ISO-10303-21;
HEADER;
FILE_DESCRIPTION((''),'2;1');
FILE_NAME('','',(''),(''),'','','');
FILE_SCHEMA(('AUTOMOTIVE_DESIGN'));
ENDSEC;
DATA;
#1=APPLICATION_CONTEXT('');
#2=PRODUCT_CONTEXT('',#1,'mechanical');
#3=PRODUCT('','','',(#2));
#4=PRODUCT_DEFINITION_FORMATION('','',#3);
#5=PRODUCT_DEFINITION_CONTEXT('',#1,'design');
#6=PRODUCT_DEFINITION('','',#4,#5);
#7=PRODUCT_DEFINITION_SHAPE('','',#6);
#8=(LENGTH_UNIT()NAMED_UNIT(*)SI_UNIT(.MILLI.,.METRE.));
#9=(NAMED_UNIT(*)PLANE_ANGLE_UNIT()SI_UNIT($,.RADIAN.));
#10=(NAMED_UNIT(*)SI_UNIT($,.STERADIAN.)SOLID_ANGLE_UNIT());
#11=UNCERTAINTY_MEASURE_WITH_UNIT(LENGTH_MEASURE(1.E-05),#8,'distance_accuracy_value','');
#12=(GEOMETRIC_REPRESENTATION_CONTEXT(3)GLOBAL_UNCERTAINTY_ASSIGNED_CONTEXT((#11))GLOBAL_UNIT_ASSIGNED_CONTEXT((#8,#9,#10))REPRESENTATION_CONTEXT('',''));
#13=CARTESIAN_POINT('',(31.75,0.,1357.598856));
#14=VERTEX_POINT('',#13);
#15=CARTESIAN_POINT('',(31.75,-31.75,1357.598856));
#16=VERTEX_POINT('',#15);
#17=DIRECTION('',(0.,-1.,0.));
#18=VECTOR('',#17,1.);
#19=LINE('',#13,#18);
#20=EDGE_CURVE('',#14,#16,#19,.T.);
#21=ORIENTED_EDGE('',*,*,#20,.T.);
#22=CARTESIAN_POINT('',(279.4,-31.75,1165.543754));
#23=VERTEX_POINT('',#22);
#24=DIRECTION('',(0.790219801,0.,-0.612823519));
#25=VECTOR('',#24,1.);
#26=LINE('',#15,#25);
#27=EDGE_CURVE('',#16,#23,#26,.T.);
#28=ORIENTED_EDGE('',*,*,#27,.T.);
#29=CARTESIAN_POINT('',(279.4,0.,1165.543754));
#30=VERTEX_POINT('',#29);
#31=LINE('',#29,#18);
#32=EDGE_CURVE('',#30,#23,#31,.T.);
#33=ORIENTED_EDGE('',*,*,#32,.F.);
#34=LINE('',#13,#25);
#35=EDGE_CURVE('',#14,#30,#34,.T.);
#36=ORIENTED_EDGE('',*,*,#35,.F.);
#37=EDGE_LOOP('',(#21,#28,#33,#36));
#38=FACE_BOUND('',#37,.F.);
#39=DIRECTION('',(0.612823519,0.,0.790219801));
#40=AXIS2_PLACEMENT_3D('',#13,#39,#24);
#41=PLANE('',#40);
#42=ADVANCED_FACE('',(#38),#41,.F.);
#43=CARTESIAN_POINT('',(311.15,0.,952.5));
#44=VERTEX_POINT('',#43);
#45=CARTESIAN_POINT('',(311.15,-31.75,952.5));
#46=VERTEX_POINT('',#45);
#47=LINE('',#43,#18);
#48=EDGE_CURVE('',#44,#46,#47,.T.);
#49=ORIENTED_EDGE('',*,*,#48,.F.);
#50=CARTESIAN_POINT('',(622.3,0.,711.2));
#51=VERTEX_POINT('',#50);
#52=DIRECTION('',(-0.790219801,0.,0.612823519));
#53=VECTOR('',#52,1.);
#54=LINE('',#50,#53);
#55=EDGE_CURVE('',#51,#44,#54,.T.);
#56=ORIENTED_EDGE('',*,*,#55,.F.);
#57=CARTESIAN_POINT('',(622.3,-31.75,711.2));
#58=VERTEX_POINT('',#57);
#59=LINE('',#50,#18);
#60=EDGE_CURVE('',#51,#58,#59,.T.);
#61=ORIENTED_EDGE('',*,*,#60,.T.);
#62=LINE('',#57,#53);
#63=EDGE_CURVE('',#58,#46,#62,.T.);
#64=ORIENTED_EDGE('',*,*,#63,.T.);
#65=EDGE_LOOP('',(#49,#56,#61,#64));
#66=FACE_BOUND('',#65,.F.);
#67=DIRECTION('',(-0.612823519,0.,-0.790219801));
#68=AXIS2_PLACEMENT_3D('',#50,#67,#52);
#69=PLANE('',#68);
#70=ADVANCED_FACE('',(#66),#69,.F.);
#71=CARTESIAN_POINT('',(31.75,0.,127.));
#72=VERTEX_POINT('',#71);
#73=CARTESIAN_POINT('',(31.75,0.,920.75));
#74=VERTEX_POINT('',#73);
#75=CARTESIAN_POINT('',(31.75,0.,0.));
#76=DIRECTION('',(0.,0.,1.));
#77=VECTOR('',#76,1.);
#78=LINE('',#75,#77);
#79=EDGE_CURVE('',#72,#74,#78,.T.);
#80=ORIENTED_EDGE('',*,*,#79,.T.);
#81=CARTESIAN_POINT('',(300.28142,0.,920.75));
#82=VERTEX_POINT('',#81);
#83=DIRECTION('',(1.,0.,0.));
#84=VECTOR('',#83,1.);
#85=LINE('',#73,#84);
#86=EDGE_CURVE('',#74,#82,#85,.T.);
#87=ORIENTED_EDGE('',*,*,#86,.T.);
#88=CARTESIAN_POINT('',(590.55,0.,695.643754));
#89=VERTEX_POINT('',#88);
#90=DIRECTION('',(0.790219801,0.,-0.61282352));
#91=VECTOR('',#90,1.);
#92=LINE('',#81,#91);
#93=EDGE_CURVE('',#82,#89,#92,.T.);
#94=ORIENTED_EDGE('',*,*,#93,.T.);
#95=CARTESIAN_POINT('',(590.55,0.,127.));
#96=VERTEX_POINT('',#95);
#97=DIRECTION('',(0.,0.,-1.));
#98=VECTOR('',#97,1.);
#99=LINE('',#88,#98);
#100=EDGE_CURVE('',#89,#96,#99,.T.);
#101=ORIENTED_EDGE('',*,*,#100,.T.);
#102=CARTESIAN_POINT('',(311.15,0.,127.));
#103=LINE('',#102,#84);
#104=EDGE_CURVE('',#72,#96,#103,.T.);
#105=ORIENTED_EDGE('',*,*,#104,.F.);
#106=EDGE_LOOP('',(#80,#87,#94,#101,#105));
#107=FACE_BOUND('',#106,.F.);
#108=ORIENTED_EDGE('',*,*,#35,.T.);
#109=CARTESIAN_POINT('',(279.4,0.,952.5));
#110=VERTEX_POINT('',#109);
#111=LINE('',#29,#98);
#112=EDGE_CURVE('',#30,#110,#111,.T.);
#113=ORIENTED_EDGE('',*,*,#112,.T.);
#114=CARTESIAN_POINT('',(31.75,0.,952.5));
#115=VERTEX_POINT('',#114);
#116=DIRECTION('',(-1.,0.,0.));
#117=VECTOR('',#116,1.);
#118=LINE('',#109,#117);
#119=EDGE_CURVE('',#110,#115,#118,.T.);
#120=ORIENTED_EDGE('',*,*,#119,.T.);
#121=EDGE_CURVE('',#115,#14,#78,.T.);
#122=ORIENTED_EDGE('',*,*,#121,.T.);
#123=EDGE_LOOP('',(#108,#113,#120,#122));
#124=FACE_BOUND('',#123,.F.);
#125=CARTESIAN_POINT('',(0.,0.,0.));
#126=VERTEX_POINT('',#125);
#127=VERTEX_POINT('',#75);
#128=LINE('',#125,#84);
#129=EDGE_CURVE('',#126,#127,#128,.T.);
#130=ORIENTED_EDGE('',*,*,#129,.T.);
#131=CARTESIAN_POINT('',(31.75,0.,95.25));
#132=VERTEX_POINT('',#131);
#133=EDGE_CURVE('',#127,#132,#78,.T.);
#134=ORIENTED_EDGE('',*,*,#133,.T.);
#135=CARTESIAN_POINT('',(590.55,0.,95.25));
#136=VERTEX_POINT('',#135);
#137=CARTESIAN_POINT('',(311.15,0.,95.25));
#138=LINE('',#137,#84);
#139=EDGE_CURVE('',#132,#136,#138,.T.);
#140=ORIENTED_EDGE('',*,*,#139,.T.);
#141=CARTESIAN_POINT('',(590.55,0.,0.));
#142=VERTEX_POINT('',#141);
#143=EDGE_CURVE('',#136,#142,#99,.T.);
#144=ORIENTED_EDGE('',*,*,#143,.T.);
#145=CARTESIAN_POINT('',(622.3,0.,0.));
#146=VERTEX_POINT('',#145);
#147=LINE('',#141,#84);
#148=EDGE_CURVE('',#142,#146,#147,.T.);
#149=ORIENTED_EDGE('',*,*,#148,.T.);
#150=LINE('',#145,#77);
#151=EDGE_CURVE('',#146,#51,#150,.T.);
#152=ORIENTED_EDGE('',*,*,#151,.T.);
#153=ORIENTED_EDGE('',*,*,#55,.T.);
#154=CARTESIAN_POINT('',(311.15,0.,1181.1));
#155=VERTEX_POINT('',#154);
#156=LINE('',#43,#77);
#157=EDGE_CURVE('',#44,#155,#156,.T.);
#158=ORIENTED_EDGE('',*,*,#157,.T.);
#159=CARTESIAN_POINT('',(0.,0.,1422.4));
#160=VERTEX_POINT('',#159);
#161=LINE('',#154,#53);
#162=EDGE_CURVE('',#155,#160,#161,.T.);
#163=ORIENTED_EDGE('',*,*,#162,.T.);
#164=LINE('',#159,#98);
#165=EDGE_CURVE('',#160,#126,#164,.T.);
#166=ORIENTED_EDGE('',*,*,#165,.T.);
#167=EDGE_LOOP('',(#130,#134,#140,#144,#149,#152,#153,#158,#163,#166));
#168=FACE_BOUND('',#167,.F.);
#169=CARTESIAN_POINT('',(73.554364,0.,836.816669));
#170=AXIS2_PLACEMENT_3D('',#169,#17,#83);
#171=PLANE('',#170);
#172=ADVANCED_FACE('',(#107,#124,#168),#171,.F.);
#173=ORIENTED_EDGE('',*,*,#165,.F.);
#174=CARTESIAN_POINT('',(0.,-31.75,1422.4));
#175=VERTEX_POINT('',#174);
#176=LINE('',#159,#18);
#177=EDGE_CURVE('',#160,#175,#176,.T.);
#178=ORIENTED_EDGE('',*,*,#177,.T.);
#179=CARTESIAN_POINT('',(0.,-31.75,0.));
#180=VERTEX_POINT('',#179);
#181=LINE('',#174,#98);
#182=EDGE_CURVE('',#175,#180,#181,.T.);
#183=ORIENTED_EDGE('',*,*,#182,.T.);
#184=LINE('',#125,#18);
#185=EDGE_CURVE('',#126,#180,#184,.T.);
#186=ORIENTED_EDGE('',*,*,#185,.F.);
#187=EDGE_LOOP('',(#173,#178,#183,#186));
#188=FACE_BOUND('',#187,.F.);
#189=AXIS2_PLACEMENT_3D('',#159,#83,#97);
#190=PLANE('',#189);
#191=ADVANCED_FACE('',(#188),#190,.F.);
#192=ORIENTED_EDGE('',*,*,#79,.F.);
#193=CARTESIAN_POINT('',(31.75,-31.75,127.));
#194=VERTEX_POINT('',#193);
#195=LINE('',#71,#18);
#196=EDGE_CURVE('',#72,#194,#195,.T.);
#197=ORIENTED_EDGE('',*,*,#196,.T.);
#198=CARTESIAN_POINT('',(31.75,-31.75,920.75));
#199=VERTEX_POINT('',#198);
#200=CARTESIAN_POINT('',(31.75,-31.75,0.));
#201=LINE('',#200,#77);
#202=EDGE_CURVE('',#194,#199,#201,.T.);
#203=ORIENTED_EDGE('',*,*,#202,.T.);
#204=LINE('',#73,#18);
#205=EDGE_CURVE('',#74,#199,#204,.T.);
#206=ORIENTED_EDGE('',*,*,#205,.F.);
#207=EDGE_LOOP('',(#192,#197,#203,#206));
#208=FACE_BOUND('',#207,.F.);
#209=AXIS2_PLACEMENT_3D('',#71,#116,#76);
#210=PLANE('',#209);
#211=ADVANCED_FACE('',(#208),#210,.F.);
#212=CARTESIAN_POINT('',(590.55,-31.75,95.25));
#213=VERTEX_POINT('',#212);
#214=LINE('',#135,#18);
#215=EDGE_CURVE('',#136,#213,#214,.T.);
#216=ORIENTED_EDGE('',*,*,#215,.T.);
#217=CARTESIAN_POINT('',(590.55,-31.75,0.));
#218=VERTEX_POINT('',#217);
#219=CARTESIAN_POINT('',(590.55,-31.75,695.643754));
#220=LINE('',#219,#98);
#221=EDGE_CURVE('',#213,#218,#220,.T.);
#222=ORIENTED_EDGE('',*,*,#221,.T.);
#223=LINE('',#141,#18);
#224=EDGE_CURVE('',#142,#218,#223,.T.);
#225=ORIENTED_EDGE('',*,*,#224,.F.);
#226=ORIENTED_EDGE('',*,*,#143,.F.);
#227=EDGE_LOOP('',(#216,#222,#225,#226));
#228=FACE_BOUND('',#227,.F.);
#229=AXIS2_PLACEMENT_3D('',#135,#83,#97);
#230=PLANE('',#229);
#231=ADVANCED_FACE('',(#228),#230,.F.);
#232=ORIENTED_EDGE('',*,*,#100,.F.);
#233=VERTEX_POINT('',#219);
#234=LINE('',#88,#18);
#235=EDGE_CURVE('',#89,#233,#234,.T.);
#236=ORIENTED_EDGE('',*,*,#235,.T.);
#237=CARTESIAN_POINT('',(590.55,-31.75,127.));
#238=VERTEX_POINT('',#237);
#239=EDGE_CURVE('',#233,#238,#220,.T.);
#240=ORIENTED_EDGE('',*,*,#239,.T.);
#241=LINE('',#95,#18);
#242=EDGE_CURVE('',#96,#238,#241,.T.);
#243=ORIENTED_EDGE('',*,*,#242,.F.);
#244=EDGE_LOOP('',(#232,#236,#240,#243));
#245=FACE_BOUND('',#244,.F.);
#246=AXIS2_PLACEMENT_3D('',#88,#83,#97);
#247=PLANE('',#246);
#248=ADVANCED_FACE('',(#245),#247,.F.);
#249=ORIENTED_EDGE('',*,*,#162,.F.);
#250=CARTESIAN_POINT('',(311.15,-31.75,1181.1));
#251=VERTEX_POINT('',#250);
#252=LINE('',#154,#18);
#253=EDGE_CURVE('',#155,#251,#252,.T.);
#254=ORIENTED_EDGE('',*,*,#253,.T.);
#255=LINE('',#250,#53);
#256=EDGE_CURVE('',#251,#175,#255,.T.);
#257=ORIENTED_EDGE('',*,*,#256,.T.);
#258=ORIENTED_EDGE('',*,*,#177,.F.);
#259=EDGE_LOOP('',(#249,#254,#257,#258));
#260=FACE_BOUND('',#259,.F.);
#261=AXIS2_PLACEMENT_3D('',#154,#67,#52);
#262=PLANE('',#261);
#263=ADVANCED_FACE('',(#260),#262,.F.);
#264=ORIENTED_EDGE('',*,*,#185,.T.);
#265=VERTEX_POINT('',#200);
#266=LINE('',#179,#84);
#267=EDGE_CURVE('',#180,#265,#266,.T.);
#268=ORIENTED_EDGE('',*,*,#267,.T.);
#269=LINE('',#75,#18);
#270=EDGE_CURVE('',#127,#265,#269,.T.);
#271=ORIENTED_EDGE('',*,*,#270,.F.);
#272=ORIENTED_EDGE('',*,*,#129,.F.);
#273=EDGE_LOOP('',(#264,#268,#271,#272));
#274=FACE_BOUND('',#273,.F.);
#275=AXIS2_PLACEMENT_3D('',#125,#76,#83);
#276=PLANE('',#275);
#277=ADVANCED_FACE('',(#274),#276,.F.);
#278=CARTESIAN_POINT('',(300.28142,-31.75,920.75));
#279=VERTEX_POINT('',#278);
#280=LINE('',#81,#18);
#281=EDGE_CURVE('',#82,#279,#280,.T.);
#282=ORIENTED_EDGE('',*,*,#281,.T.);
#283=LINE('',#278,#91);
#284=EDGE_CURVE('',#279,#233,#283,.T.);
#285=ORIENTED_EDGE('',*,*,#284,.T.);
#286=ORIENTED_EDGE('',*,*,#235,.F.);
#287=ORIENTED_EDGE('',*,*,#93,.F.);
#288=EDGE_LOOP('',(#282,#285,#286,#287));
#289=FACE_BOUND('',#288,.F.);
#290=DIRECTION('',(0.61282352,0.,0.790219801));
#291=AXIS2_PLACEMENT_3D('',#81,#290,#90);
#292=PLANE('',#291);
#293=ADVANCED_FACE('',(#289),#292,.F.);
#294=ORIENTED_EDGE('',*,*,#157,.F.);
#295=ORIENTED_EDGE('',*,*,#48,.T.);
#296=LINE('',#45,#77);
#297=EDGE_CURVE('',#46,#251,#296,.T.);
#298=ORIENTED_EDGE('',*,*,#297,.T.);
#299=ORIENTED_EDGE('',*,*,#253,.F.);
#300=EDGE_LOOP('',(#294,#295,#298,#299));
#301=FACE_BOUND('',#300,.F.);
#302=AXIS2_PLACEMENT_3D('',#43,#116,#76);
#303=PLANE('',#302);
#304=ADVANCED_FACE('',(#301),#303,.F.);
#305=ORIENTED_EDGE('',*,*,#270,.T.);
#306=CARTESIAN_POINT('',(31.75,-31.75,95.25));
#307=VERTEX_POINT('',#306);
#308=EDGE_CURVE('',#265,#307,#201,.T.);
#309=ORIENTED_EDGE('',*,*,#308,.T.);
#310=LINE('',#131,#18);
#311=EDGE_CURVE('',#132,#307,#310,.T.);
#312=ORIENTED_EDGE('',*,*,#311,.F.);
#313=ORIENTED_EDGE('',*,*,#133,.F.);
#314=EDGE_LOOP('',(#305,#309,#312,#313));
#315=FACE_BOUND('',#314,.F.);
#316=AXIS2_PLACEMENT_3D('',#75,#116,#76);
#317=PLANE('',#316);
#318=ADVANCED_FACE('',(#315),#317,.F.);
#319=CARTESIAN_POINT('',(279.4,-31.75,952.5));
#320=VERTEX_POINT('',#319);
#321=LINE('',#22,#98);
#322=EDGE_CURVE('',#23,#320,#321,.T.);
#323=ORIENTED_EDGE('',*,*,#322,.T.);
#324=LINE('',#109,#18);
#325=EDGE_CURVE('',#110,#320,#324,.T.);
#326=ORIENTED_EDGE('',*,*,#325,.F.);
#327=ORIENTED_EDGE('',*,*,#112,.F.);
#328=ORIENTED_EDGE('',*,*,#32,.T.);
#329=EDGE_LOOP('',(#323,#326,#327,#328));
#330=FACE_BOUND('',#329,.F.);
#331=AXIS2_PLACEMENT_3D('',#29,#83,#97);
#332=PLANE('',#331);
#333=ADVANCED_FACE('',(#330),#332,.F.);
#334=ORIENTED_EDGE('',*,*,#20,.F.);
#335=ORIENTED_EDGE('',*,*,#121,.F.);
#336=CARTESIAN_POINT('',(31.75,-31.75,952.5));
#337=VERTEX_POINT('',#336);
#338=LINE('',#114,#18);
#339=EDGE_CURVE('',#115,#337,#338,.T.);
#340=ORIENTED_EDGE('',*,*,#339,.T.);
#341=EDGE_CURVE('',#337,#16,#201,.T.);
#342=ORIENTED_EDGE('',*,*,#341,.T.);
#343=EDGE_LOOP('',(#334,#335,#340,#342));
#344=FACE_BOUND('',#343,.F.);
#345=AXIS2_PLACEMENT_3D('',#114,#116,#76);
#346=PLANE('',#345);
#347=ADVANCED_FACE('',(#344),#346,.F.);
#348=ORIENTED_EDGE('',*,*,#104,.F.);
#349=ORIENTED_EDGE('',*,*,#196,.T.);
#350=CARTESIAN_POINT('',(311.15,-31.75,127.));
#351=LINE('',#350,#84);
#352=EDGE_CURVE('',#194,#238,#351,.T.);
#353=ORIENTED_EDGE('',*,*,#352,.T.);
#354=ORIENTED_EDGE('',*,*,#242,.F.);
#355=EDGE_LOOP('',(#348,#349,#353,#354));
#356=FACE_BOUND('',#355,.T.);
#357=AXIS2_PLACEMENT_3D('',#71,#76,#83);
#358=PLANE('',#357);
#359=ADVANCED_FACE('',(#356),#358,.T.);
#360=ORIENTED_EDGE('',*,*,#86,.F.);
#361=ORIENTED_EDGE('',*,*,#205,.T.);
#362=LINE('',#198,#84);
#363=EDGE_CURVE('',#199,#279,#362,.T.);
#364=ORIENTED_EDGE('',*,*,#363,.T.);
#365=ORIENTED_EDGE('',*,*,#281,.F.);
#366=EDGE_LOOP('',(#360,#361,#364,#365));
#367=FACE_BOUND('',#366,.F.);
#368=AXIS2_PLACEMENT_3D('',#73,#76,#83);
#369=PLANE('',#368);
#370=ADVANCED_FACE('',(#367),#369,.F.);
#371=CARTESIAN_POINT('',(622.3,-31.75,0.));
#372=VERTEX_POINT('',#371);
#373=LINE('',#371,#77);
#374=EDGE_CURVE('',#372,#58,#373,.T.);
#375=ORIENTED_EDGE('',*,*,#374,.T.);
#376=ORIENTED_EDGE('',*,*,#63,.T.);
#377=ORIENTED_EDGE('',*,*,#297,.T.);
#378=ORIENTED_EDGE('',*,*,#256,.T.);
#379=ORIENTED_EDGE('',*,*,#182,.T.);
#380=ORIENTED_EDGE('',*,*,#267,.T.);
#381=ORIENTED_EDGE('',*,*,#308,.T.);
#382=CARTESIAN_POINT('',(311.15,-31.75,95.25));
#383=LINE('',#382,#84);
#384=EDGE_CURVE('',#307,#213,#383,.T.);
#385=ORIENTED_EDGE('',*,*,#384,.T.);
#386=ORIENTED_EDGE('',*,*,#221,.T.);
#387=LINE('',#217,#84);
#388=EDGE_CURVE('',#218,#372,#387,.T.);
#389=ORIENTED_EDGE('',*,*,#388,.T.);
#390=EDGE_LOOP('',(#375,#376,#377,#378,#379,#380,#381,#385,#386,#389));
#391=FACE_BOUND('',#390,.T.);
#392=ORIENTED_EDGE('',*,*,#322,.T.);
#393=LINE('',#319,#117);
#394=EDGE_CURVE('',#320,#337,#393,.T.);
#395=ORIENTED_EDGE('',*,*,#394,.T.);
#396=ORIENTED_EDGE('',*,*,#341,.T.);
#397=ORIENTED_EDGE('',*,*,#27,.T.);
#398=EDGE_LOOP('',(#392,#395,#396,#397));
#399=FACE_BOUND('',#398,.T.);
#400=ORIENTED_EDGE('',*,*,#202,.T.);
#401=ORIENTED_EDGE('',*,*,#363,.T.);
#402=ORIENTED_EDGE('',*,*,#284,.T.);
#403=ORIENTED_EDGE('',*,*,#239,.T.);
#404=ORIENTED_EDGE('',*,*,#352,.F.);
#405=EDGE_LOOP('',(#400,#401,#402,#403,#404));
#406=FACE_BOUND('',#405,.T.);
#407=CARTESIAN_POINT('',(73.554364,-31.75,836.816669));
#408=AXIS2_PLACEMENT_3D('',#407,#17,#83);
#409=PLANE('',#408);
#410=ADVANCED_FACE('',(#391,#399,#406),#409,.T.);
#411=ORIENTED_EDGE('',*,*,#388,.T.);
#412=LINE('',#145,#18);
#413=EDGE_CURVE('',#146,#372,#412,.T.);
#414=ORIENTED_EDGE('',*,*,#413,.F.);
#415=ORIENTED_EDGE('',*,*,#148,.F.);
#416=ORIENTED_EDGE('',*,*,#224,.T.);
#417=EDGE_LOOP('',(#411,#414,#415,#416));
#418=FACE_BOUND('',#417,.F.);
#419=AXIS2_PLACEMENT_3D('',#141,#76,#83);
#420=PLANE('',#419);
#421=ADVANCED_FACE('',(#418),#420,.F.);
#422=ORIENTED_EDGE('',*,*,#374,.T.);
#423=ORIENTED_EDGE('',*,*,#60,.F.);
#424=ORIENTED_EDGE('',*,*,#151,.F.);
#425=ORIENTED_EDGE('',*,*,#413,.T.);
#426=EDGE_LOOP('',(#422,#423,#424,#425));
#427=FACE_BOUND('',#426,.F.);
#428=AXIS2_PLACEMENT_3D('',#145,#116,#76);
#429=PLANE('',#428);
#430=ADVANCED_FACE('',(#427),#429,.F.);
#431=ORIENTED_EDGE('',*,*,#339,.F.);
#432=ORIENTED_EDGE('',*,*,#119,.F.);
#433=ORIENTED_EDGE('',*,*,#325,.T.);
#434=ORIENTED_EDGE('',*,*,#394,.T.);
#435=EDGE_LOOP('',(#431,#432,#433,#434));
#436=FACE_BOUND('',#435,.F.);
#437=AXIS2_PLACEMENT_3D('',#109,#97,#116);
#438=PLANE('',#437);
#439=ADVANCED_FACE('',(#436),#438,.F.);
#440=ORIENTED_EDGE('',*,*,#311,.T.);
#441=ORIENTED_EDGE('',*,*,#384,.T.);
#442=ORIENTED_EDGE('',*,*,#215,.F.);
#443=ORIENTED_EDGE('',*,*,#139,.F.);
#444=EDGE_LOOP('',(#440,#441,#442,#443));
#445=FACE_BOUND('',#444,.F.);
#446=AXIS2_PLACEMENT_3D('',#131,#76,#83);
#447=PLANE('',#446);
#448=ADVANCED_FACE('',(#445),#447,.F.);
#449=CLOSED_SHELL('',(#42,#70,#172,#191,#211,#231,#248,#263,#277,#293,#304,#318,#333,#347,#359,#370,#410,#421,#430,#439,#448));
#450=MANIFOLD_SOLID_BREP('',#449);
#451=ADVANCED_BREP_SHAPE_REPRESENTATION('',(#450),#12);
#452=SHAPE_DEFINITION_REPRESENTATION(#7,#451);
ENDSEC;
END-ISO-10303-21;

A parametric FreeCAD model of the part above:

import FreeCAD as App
import Part
import Sketcher

V = App.Vector
Q = App.Units.Quantity


def add_polygon(sketch, points):
    """Adds a closed chain of lines whose ends are joined by coincident constraints."""
    first, n = sketch.GeometryCount, len(points)
    for a, b in zip(points, points[1:] + points[:1]):
        sketch.addGeometry(Part.LineSegment(App.Vector(*a, 0), App.Vector(*b, 0)), False)
    for i in range(n):
        sketch.addConstraint(Sketcher.Constraint("Coincident", first + i, 2, first + (i + 1) % n, 1))

doc = App.newDocument("Part")
params = doc.addObject("Spreadsheet::Sheet", "Params")
for row, (alias, value) in enumerate([
    ("sketch1_width", "22 in"),
    ("sketch1_height", "28 in"),
    ("sketch1_height2", "9 in"),
    ("sketch1_height3", "56 in"),
    ("sketch1_width2", "1.25 in"),
    ("pad1_length", "1.25 in"),
], start=1):
    params.set(f"A{row}", alias)
    params.set(f"B{row}", "=" + value)
    params.setAlias(f"B{row}", alias)

body = doc.addObject("PartDesign::Body", "Body")

sketch1 = body.newObject("Sketcher::SketchObject", "Sketch")
sketch1.AttachmentSupport = (doc.getObject("XZ_Plane"), [""])
sketch1.MapMode = "FlatFace"
add_polygon(sketch1, [(0, 0), (32, 0), (32, 95), (591, 95), (591, 0), (622, 0), (622, 711), (311, 952), (311, 1181), (0, 1422)])
add_polygon(sketch1, [(32, 127), (32, 921), (300, 921), (591, 696), (591, 127)])
add_polygon(sketch1, [(32, 952), (32, 1358), (279, 1166), (279, 952)])
sketch1.addConstraint([
    Sketcher.Constraint("Horizontal", 0),
    Sketcher.Constraint("Vertical", 1),
    Sketcher.Constraint("Horizontal", 2),
    Sketcher.Constraint("Vertical", 3),
    Sketcher.Constraint("Horizontal", 4),
    Sketcher.Constraint("Vertical", 5),
    Sketcher.Constraint("Vertical", 7),
    Sketcher.Constraint("Vertical", 9),
    Sketcher.Constraint("Vertical", 10),
    Sketcher.Constraint("Horizontal", 11),
    Sketcher.Constraint("Vertical", 13),
    Sketcher.Constraint("Horizontal", 14),
    Sketcher.Constraint("Vertical", 15),
    Sketcher.Constraint("Vertical", 17),
    Sketcher.Constraint("Horizontal", 18),
    Sketcher.Constraint("Coincident", 9, 2, -1, 1),
    Sketcher.Constraint("PointOnObject", 3, 2, -1),
    Sketcher.Constraint("Parallel", 6, 8),
    Sketcher.Constraint("Parallel", 8, 12),
    Sketcher.Constraint("Parallel", 12, 16),
    Sketcher.Constraint("Horizontal", 6, 2, 17, 2),
    Sketcher.Constraint("Vertical", 1, 2, 10, 2),
    Sketcher.Constraint("Vertical", 3, 2, 12, 2),
    Sketcher.Constraint("Vertical", 14, 2, 15, 2),
    Sketcher.Constraint("Equal", 0, 4),
    Sketcher.Constraint("Equal", 6, 8),
    Sketcher.Constraint("DistanceX", 2, 1, 2, 2, Q("22 in")),
    Sketcher.Constraint("DistanceY", 5, 1, 5, 2, Q("28 in")),
    Sketcher.Constraint("DistanceY", 7, 1, 7, 2, Q("9 in")),
    Sketcher.Constraint("DistanceY", 9, 2, 9, 1, Q("56 in")),
    Sketcher.Constraint("DistanceY", -1, 1, 13, 2, Q("5 in")),
    Sketcher.Constraint("DistanceX", -1, 1, 16, 2, Q("11 in")),
    Sketcher.Constraint("DistanceX", 0, 1, 0, 2, Q("1.25 in")),
    Sketcher.Constraint("DistanceY", 1, 1, 1, 2, Q("3.75 in")),
    Sketcher.Constraint("DistanceY", 10, 1, 10, 2, Q("31.25 in")),
    Sketcher.Constraint("DistanceX", 11, 1, 11, 2, 268.53142),
    Sketcher.Constraint("DistanceY", 15, 1, 15, 2, 405.098856),
])
sketch1.setExpression("Constraints[45]", "Params.sketch1_width")
sketch1.setExpression("Constraints[46]", "Params.sketch1_height")
sketch1.setExpression("Constraints[47]", "Params.sketch1_height2")
sketch1.setExpression("Constraints[48]", "Params.sketch1_height3")
sketch1.setExpression("Constraints[51]", "Params.sketch1_width2")
pad1 = body.newObject("PartDesign::Pad", "Pad")
pad1.Profile = sketch1
pad1.setExpression("Length", "Params.pad1_length")

doc.recompute()
